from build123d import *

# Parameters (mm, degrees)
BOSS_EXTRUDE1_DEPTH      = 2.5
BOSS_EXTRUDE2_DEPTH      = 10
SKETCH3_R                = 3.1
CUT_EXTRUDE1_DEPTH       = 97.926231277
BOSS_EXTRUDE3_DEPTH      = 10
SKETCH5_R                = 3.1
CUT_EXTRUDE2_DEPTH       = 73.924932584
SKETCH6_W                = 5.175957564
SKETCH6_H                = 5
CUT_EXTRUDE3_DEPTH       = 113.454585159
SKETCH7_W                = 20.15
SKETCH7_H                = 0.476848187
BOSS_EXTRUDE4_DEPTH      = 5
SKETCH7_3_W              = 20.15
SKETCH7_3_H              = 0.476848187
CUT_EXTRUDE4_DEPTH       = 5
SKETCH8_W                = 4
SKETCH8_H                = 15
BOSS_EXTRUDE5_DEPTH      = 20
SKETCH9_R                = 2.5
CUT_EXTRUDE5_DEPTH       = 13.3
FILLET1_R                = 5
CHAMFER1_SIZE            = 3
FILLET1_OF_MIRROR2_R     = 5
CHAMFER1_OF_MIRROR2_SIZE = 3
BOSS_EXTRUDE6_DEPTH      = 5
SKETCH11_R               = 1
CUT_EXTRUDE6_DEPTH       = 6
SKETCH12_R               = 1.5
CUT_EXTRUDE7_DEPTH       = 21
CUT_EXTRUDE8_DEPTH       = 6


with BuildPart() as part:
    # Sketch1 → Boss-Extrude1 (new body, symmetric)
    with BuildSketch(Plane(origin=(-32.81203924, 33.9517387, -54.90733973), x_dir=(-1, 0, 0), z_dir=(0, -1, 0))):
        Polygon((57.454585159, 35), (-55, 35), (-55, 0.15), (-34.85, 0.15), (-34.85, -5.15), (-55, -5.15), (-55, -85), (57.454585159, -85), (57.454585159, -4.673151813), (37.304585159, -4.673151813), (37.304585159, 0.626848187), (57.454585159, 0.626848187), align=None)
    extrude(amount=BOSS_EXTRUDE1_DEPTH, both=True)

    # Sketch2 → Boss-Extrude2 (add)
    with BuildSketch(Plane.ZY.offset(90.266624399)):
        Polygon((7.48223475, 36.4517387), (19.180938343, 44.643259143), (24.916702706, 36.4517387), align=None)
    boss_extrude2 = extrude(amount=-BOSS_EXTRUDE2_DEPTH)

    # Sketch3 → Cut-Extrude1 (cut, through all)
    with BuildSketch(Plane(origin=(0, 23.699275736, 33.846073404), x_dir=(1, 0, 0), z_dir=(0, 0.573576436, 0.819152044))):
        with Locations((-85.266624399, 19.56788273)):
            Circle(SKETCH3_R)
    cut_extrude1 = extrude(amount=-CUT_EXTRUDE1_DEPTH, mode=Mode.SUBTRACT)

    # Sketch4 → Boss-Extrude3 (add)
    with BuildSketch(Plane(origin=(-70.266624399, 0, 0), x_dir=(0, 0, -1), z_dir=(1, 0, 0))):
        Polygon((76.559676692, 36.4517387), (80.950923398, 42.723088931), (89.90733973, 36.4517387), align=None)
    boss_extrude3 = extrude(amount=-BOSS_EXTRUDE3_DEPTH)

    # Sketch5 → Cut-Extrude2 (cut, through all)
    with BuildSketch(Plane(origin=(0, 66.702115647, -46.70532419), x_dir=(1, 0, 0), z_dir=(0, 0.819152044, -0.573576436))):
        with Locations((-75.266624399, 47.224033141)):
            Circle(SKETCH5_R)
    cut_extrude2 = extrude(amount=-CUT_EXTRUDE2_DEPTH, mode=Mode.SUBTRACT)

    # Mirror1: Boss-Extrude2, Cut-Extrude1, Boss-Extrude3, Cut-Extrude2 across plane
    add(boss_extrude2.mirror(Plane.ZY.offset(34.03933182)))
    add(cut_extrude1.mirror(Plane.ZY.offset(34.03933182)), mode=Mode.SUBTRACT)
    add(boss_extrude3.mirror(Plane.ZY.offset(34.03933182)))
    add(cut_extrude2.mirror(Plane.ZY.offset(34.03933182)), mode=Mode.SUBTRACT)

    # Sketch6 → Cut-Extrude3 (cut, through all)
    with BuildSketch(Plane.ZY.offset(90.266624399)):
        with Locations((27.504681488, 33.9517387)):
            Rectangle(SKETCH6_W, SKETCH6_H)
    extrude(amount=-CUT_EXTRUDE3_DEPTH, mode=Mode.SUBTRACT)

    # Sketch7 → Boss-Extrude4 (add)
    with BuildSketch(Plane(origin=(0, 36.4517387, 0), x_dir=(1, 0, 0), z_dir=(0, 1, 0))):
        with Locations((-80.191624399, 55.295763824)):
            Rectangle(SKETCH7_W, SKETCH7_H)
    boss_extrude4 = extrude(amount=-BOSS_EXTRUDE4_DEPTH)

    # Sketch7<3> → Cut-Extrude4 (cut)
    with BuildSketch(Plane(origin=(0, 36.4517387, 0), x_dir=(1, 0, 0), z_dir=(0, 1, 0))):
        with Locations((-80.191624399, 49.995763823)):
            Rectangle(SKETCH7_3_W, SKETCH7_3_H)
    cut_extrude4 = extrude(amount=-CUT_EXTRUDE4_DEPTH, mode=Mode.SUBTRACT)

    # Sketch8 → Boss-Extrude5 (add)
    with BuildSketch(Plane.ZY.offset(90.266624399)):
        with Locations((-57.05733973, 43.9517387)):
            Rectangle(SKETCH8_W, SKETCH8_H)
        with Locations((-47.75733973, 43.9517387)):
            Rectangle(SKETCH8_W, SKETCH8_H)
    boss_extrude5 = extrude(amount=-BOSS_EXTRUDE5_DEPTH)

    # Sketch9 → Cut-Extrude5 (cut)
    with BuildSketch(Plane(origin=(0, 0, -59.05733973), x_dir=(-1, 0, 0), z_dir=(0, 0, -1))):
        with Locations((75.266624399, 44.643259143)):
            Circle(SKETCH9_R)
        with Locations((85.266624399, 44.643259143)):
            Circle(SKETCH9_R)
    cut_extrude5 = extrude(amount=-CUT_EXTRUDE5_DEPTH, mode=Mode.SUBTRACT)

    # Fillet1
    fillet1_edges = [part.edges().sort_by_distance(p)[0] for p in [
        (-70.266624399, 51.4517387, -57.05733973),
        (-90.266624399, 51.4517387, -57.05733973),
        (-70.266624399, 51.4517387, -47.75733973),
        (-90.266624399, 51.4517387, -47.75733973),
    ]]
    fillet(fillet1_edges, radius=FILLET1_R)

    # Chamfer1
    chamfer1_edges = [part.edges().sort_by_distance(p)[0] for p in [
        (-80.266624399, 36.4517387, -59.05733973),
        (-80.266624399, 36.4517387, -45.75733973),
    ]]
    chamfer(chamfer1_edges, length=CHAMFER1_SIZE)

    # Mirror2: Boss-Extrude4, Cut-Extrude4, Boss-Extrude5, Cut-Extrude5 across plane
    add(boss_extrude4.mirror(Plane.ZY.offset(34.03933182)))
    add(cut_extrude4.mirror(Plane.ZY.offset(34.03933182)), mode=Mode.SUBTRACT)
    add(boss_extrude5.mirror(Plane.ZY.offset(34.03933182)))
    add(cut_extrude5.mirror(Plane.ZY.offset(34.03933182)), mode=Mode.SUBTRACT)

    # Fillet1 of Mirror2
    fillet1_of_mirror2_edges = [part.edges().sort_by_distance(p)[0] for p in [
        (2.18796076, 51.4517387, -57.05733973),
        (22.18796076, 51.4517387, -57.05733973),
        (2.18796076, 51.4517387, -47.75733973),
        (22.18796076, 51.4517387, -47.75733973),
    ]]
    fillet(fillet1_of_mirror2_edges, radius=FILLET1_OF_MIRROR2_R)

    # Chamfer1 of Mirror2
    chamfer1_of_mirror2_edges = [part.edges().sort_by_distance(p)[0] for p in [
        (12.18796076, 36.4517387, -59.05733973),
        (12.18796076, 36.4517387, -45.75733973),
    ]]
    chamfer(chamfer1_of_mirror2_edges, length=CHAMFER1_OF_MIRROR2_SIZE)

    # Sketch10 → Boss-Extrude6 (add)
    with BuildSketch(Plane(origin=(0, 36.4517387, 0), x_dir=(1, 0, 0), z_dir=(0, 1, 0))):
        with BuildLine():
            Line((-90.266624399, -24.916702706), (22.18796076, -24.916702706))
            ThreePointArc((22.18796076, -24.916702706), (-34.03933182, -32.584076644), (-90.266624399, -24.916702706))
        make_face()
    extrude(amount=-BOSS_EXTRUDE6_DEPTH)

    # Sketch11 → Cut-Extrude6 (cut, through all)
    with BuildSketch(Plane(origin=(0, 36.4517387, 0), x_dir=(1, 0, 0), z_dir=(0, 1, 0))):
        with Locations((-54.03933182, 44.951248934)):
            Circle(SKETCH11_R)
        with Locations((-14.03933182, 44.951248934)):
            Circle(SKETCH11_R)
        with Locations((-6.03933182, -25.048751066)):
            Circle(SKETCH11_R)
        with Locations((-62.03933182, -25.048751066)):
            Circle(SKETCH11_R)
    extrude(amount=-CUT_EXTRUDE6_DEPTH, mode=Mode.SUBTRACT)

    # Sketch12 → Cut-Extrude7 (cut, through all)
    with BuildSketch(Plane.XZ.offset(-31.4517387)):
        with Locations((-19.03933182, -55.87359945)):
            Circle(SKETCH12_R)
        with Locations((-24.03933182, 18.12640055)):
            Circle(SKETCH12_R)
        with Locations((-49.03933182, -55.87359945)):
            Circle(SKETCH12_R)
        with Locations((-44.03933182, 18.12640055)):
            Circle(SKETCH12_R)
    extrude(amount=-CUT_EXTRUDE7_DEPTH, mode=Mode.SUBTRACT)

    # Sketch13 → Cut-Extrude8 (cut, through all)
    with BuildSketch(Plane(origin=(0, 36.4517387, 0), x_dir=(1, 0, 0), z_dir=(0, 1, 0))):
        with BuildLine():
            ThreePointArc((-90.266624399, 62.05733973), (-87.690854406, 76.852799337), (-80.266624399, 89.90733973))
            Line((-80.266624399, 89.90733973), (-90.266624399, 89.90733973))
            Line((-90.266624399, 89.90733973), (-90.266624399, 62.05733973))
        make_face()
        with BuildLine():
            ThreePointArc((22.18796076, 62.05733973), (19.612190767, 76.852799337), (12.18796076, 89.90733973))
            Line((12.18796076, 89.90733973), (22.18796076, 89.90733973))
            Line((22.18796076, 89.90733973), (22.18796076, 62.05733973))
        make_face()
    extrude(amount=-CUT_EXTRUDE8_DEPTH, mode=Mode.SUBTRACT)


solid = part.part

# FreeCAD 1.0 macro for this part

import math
import FreeCAD as App
import Part
import Sketcher

V = App.Vector
Q = App.Units.Quantity


def edges_at(feature, points):
    """Names of the edges that pass closest to the given points."""
    edges = feature.Shape.Edges
    near = lambda p: min(range(len(edges)), key=lambda i: edges[i].distToShape(Part.Vertex(*p))[0])
    return sorted({f"Edge{near(p) + 1}" for p in points})

doc = App.newDocument("Part")
body = doc.addObject("PartDesign::Body", "Body")

sketch1 = doc.addObject("Sketcher::SketchObject", "Sketch")
body.addObject(sketch1)
sketch1.AttachmentSupport = (doc.XZ_Plane, [""])
sketch1.MapMode = "FlatFace"
sketch1.AttachmentOffset = App.Placement(V(0, 0, -33.951739), App.Rotation())
sketch1.addGeometry([
    Part.LineSegment(V(-90.266624, -89.90734, 0), V(22.187961, -89.90734, 0)),
    Part.LineSegment(V(22.187961, -89.90734, 0), V(22.187961, -55.05734, 0)),
    Part.LineSegment(V(22.187961, -55.05734, 0), V(2.037961, -55.05734, 0)),
    Part.LineSegment(V(2.037961, -55.05734, 0), V(2.037961, -49.75734, 0)),
    Part.LineSegment(V(2.037961, -49.75734, 0), V(22.187961, -49.75734, 0)),
    Part.LineSegment(V(22.187961, -49.75734, 0), V(22.187961, 30.09266, 0)),
    Part.LineSegment(V(22.187961, 30.09266, 0), V(-90.266624, 30.09266, 0)),
    Part.LineSegment(V(-90.266624, 30.09266, 0), V(-90.266624, -50.234188, 0)),
    Part.LineSegment(V(-90.266624, -50.234188, 0), V(-70.116624, -50.234188, 0)),
    Part.LineSegment(V(-70.116624, -50.234188, 0), V(-70.116624, -55.534188, 0)),
    Part.LineSegment(V(-70.116624, -55.534188, 0), V(-90.266624, -55.534188, 0)),
    Part.LineSegment(V(-90.266624, -55.534188, 0), V(-90.266624, -89.90734, 0)),
], False)
sketch1.addConstraint([
    Sketcher.Constraint("Coincident", 0, 2, 1, 1),
    Sketcher.Constraint("Coincident", 1, 2, 2, 1),
    Sketcher.Constraint("Coincident", 2, 2, 3, 1),
    Sketcher.Constraint("Coincident", 3, 2, 4, 1),
    Sketcher.Constraint("Coincident", 4, 2, 5, 1),
    Sketcher.Constraint("Coincident", 5, 2, 6, 1),
    Sketcher.Constraint("Coincident", 6, 2, 7, 1),
    Sketcher.Constraint("Coincident", 7, 2, 8, 1),
    Sketcher.Constraint("Coincident", 8, 2, 9, 1),
    Sketcher.Constraint("Coincident", 9, 2, 10, 1),
    Sketcher.Constraint("Coincident", 10, 2, 11, 1),
    Sketcher.Constraint("Coincident", 11, 2, 0, 1),
    Sketcher.Constraint("Horizontal", 0),
    Sketcher.Constraint("Vertical", 1),
    Sketcher.Constraint("Horizontal", 2),
    Sketcher.Constraint("Vertical", 3),
    Sketcher.Constraint("Horizontal", 4),
    Sketcher.Constraint("Vertical", 5),
    Sketcher.Constraint("Horizontal", 6),
    Sketcher.Constraint("Vertical", 7),
    Sketcher.Constraint("Horizontal", 8),
    Sketcher.Constraint("Vertical", 9),
    Sketcher.Constraint("Horizontal", 10),
    Sketcher.Constraint("Vertical", 11),
    Sketcher.Constraint("Vertical", 1, 2, 4, 2),
    Sketcher.Constraint("Vertical", 7, 2, 10, 2),
    Sketcher.Constraint("Equal", 4, 8),
    Sketcher.Constraint("Equal", 3, 9),
    Sketcher.Constraint("DistanceY", 3, 1, 3, 2, 5.3),
    Sketcher.Constraint("DistanceY", 0, 2, 5, 2, 120.0),
    Sketcher.Constraint("DistanceX", 2, 2, 2, 1, 20.15),
    Sketcher.Constraint("DistanceY", 1, 1, 1, 2, 34.85),
    Sketcher.Constraint("DistanceY", 7, 2, 7, 1, 80.326848),
    Sketcher.Constraint("DistanceX", 0, 1, 0, 2, 112.454585),
    Sketcher.Constraint("DistanceX", -1, 1, 0, 2, 22.187961),
    Sketcher.Constraint("DistanceY", 0, 2, -1, 1, 89.90734),
])
pad1 = doc.addObject("PartDesign::Pad", "Pad")
body.addObject(pad1)
pad1.Profile = sketch1
pad1.Length = 5
pad1.Midplane = True

sketch2 = doc.addObject("Sketcher::SketchObject", "Sketch001")
body.addObject(sketch2)
sketch2.AttachmentSupport = (doc.YZ_Plane, [""])
sketch2.MapMode = "FlatFace"
sketch2.AttachmentOffset = App.Placement(V(0, 0, -90.266624), App.Rotation())
sketch2.addGeometry([
    Part.LineSegment(V(44.643259, 19.180938, 0), V(36.451739, 7.482235, 0)),
    Part.LineSegment(V(36.451739, 7.482235, 0), V(36.451739, 24.916703, 0)),
    Part.LineSegment(V(36.451739, 24.916703, 0), V(44.643259, 19.180938, 0)),
], False)
sketch2.addConstraint([
    Sketcher.Constraint("Coincident", 0, 2, 1, 1),
    Sketcher.Constraint("Coincident", 1, 2, 2, 1),
    Sketcher.Constraint("Coincident", 2, 2, 0, 1),
    Sketcher.Constraint("Vertical", 1),
    Sketcher.Constraint("Perpendicular", 0, 2),
    Sketcher.Constraint("Angle", 0, Q("-125 deg")),
    Sketcher.Constraint("Distance", 2, 10.0),
    Sketcher.Constraint("DistanceX", -1, 1, 0, 2, 36.451739),
    Sketcher.Constraint("DistanceY", -1, 1, 2, 2, 19.180938),
])
pad2 = doc.addObject("PartDesign::Pad", "Pad001")
body.addObject(pad2)
pad2.Profile = sketch2
pad2.Length = 10

sketch3 = doc.addObject("Sketcher::SketchObject", "Sketch002")
body.addObject(sketch3)
sketch3.Placement = App.Placement(V(0, 23.699276, 33.846073), App.Rotation(V(1, 0, 0), V(0, 0.819152044, -0.573576436), V(0, 0.573576436, 0.819152044), "ZXY"))
sketch3.addGeometry(Part.Circle(V(-85.266624, 19.567883, 0), V(0, 0, 1), 3.1), False)
sketch3.addConstraint([
    Sketcher.Constraint("Diameter", 0, 6.2),
    Sketcher.Constraint("DistanceX", 0, 3, -1, 1, 85.266624),
    Sketcher.Constraint("DistanceY", -1, 1, 0, 3, 19.567883),
])
pocket1 = doc.addObject("PartDesign::Pocket", "Pocket")
body.addObject(pocket1)
pocket1.Profile = sketch3
pocket1.Type = "ThroughAll"

sketch4 = doc.addObject("Sketcher::SketchObject", "Sketch003")
body.addObject(sketch4)
sketch4.AttachmentSupport = (doc.YZ_Plane, [""])
sketch4.MapMode = "FlatFace"
sketch4.AttachmentOffset = App.Placement(V(0, 0, -70.266624), App.Rotation())
sketch4.addGeometry([
    Part.LineSegment(V(42.723089, -80.950923, 0), V(36.451739, -76.559677, 0)),
    Part.LineSegment(V(36.451739, -76.559677, 0), V(36.451739, -89.90734, 0)),
    Part.LineSegment(V(36.451739, -89.90734, 0), V(42.723089, -80.950923, 0)),
], False)
sketch4.addConstraint([
    Sketcher.Constraint("Coincident", 0, 2, 1, 1),
    Sketcher.Constraint("Coincident", 1, 2, 2, 1),
    Sketcher.Constraint("Coincident", 2, 2, 0, 1),
    Sketcher.Constraint("Vertical", 1),
    Sketcher.Constraint("Perpendicular", 0, 2),
    Sketcher.Constraint("Angle", 0, Q("145 deg")),
    Sketcher.Constraint("DistanceY", 1, 2, 1, 1, 13.347663),
    Sketcher.Constraint("DistanceX", -1, 1, 0, 2, 36.451739),
    Sketcher.Constraint("DistanceY", 1, 2, -1, 1, 89.90734),
])
pad3 = doc.addObject("PartDesign::Pad", "Pad002")
body.addObject(pad3)
pad3.Profile = sketch4
pad3.Length = 10
pad3.Reversed = True

sketch5 = doc.addObject("Sketcher::SketchObject", "Sketch004")
body.addObject(sketch5)
sketch5.Placement = App.Placement(V(0, 66.702116, -46.705324), App.Rotation(V(1, 0, 0), V(0, -0.573576436, -0.819152044), V(0, 0.819152044, -0.573576436), "ZXY"))
sketch5.addGeometry(Part.Circle(V(-75.266624, 47.224033, 0), V(0, 0, 1), 3.1), False)
sketch5.addConstraint([
    Sketcher.Constraint("Diameter", 0, 6.2),
    Sketcher.Constraint("DistanceX", 0, 3, -1, 1, 75.266624),
    Sketcher.Constraint("DistanceY", -1, 1, 0, 3, 47.224033),
])
pocket2 = doc.addObject("PartDesign::Pocket", "Pocket001")
body.addObject(pocket2)
pocket2.Profile = sketch5
pocket2.Type = "ThroughAll"
doc.recompute()

datumplane = doc.addObject("PartDesign::Plane", "DatumPlane")
body.addObject(datumplane)
datumplane.AttachmentSupport = (doc.YZ_Plane, [""])
datumplane.MapMode = "FlatFace"
datumplane.AttachmentOffset = App.Placement(V(0, 0, -34.039332), App.Rotation())
mirrored = doc.addObject("PartDesign::Mirrored", "Mirrored")
body.addObject(mirrored)
mirrored.Originals = [pad2, pocket1, pad3, pocket2]
mirrored.MirrorPlane = (datumplane, [""])
body.Tip = mirrored

sketch6 = doc.addObject("Sketcher::SketchObject", "Sketch005")
body.addObject(sketch6)
sketch6.AttachmentSupport = (doc.YZ_Plane, [""])
sketch6.MapMode = "FlatFace"
sketch6.AttachmentOffset = App.Placement(V(0, 0, -90.266624), App.Rotation())
sketch6.addGeometry([
    Part.LineSegment(V(36.451739, 24.916703, 0), V(31.451739, 24.916703, 0)),
    Part.LineSegment(V(31.451739, 24.916703, 0), V(31.451739, 30.09266, 0)),
    Part.LineSegment(V(31.451739, 30.09266, 0), V(36.451739, 30.09266, 0)),
    Part.LineSegment(V(36.451739, 30.09266, 0), V(36.451739, 24.916703, 0)),
], False)
sketch6.addConstraint([
    Sketcher.Constraint("Coincident", 0, 2, 1, 1),
    Sketcher.Constraint("Coincident", 1, 2, 2, 1),
    Sketcher.Constraint("Coincident", 2, 2, 3, 1),
    Sketcher.Constraint("Coincident", 3, 2, 0, 1),
    Sketcher.Constraint("Horizontal", 0),
    Sketcher.Constraint("Vertical", 1),
    Sketcher.Constraint("Horizontal", 2),
    Sketcher.Constraint("Vertical", 3),
    Sketcher.Constraint("DistanceX", 0, 2, 0, 1, 5.0),
    Sketcher.Constraint("DistanceY", 1, 1, 1, 2, 5.175958),
    Sketcher.Constraint("DistanceX", -1, 1, 0, 2, 31.451739),
    Sketcher.Constraint("DistanceY", -1, 1, 1, 2, 30.09266),
])
pocket3 = doc.addObject("PartDesign::Pocket", "Pocket002")
body.addObject(pocket3)
pocket3.Profile = sketch6
pocket3.Type = "ThroughAll"
pocket3.Reversed = True

sketch7 = doc.addObject("Sketcher::SketchObject", "Sketch006")
body.addObject(sketch7)
sketch7.AttachmentSupport = (doc.XZ_Plane, [""])
sketch7.MapMode = "FlatFace"
sketch7.AttachmentOffset = App.Placement(V(0, 0, -36.451739), App.Rotation())
sketch7.addGeometry([
    Part.LineSegment(V(-90.266624, -55.534188, 0), V(-90.266624, -55.05734, 0)),
    Part.LineSegment(V(-90.266624, -55.05734, 0), V(-70.116624, -55.05734, 0)),
    Part.LineSegment(V(-70.116624, -55.05734, 0), V(-70.116624, -55.534188, 0)),
    Part.LineSegment(V(-70.116624, -55.534188, 0), V(-90.266624, -55.534188, 0)),
], False)
sketch7.addConstraint([
    Sketcher.Constraint("Coincident", 0, 2, 1, 1),
    Sketcher.Constraint("Coincident", 1, 2, 2, 1),
    Sketcher.Constraint("Coincident", 2, 2, 3, 1),
    Sketcher.Constraint("Coincident", 3, 2, 0, 1),
    Sketcher.Constraint("Vertical", 0),
    Sketcher.Constraint("Horizontal", 1),
    Sketcher.Constraint("Vertical", 2),
    Sketcher.Constraint("Horizontal", 3),
    Sketcher.Constraint("DistanceX", 1, 1, 1, 2, 20.15),
    Sketcher.Constraint("DistanceY", 0, 1, 0, 2, 0.476848),
    Sketcher.Constraint("DistanceY", 0, 2, -1, 1, 55.05734),
    Sketcher.Constraint("DistanceX", 0, 2, -1, 1, 90.266624),
])
pad4 = doc.addObject("PartDesign::Pad", "Pad003")
body.addObject(pad4)
pad4.Profile = sketch7
pad4.Length = 5

sketch8 = doc.addObject("Sketcher::SketchObject", "Sketch007")
body.addObject(sketch8)
sketch8.AttachmentSupport = (doc.XZ_Plane, [""])
sketch8.MapMode = "FlatFace"
sketch8.AttachmentOffset = App.Placement(V(0, 0, -36.451739), App.Rotation())
sketch8.addGeometry([
    Part.LineSegment(V(-90.266624, -50.234188, 0), V(-90.266624, -49.75734, 0)),
    Part.LineSegment(V(-90.266624, -49.75734, 0), V(-70.116624, -49.75734, 0)),
    Part.LineSegment(V(-70.116624, -49.75734, 0), V(-70.116624, -50.234188, 0)),
    Part.LineSegment(V(-70.116624, -50.234188, 0), V(-90.266624, -50.234188, 0)),
], False)
sketch8.addConstraint([
    Sketcher.Constraint("Coincident", 0, 2, 1, 1),
    Sketcher.Constraint("Coincident", 1, 2, 2, 1),
    Sketcher.Constraint("Coincident", 2, 2, 3, 1),
    Sketcher.Constraint("Coincident", 3, 2, 0, 1),
    Sketcher.Constraint("Vertical", 0),
    Sketcher.Constraint("Horizontal", 1),
    Sketcher.Constraint("Vertical", 2),
    Sketcher.Constraint("Horizontal", 3),
    Sketcher.Constraint("DistanceX", 1, 1, 1, 2, 20.15),
    Sketcher.Constraint("DistanceY", 0, 1, 0, 2, 0.476848),
    Sketcher.Constraint("DistanceY", 0, 2, -1, 1, 49.75734),
    Sketcher.Constraint("DistanceX", 0, 2, -1, 1, 90.266624),
])
pocket4 = doc.addObject("PartDesign::Pocket", "Pocket003")
body.addObject(pocket4)
pocket4.Profile = sketch8
pocket4.Length = 5
pocket4.Reversed = True

sketch9 = doc.addObject("Sketcher::SketchObject", "Sketch008")
body.addObject(sketch9)
sketch9.AttachmentSupport = (doc.YZ_Plane, [""])
sketch9.MapMode = "FlatFace"
sketch9.AttachmentOffset = App.Placement(V(0, 0, -90.266624), App.Rotation())
sketch9.addGeometry([
    Part.LineSegment(V(51.451739, -59.05734, 0), V(36.451739, -59.05734, 0)),
    Part.LineSegment(V(36.451739, -59.05734, 0), V(36.451739, -55.05734, 0)),
    Part.LineSegment(V(36.451739, -55.05734, 0), V(51.451739, -55.05734, 0)),
    Part.LineSegment(V(51.451739, -55.05734, 0), V(51.451739, -59.05734, 0)),
    Part.LineSegment(V(51.451739, -49.75734, 0), V(36.451739, -49.75734, 0)),
    Part.LineSegment(V(36.451739, -49.75734, 0), V(36.451739, -45.75734, 0)),
    Part.LineSegment(V(36.451739, -45.75734, 0), V(51.451739, -45.75734, 0)),
    Part.LineSegment(V(51.451739, -45.75734, 0), V(51.451739, -49.75734, 0)),
], False)
sketch9.addConstraint([
    Sketcher.Constraint("Coincident", 0, 2, 1, 1),
    Sketcher.Constraint("Coincident", 1, 2, 2, 1),
    Sketcher.Constraint("Coincident", 2, 2, 3, 1),
    Sketcher.Constraint("Coincident", 3, 2, 0, 1),
    Sketcher.Constraint("Coincident", 4, 2, 5, 1),
    Sketcher.Constraint("Coincident", 5, 2, 6, 1),
    Sketcher.Constraint("Coincident", 6, 2, 7, 1),
    Sketcher.Constraint("Coincident", 7, 2, 4, 1),
    Sketcher.Constraint("Horizontal", 0),
    Sketcher.Constraint("Vertical", 1),
    Sketcher.Constraint("Horizontal", 2),
    Sketcher.Constraint("Vertical", 3),
    Sketcher.Constraint("Horizontal", 4),
    Sketcher.Constraint("Vertical", 5),
    Sketcher.Constraint("Horizontal", 6),
    Sketcher.Constraint("Vertical", 7),
    Sketcher.Constraint("Vertical", 1, 2, 4, 2),
    Sketcher.Constraint("Vertical", 3, 2, 6, 2),
    Sketcher.Constraint("Equal", 3, 5),
    Sketcher.Constraint("DistanceX", 0, 2, 0, 1, 15.0),
    Sketcher.Constraint("DistanceY", 1, 1, 1, 2, 4.0),
    Sketcher.Constraint("DistanceY", 1, 2, 4, 2, 5.3),
    Sketcher.Constraint("DistanceX", -1, 1, 0, 2, 36.451739),
    Sketcher.Constraint("DistanceY", 0, 2, -1, 1, 59.05734),
])
pad5 = doc.addObject("PartDesign::Pad", "Pad004")
body.addObject(pad5)
pad5.Profile = sketch9
pad5.Length = 20

sketch10 = doc.addObject("Sketcher::SketchObject", "Sketch009")
body.addObject(sketch10)
sketch10.AttachmentSupport = (doc.XY_Plane, [""])
sketch10.MapMode = "FlatFace"
sketch10.AttachmentOffset = App.Placement(V(0, 0, -59.05734), App.Rotation())
sketch10.addGeometry([
    Part.Circle(V(-75.266624, 44.643259, 0), V(0, 0, 1), 2.5),
    Part.Circle(V(-85.266624, 44.643259, 0), V(0, 0, 1), 2.5),
], False)
sketch10.addConstraint([
    Sketcher.Constraint("Equal", 0, 1),
    Sketcher.Constraint("Horizontal", 0, 3, 1, 3),
    Sketcher.Constraint("Diameter", 0, 5.0),
    Sketcher.Constraint("DistanceX", 1, 3, 0, 3, 10.0),
    Sketcher.Constraint("DistanceY", -1, 1, 0, 3, 44.643259),
    Sketcher.Constraint("DistanceX", 0, 3, -1, 1, 75.266624),
])
pocket5 = doc.addObject("PartDesign::Pocket", "Pocket004")
body.addObject(pocket5)
pocket5.Profile = sketch10
pocket5.Length = 13.3
pocket5.Reversed = True
doc.recompute()

fillet = doc.addObject("PartDesign::Fillet", "Fillet")
body.addObject(fillet)
fillet.Base = (pocket5, edges_at(pocket5, [
    (-70.267, 51.452, -57.057),
    (-90.267, 51.452, -57.057),
    (-70.267, 51.452, -47.757),
    (-90.267, 51.452, -47.757),
]))
fillet.Radius = 5
doc.recompute()

chamfer = doc.addObject("PartDesign::Chamfer", "Chamfer")
body.addObject(chamfer)
chamfer.Base = (fillet, edges_at(fillet, [(-80.267, 36.452, -59.057), (-80.267, 36.452, -45.757)]))
chamfer.Size = 3
doc.recompute()

datumplane2 = doc.addObject("PartDesign::Plane", "DatumPlane001")
body.addObject(datumplane2)
datumplane2.AttachmentSupport = (doc.YZ_Plane, [""])
datumplane2.MapMode = "FlatFace"
datumplane2.AttachmentOffset = App.Placement(V(0, 0, -34.039332), App.Rotation())
mirrored2 = doc.addObject("PartDesign::Mirrored", "Mirrored001")
body.addObject(mirrored2)
mirrored2.Originals = [pad4, pocket4, pad5, pocket5]
mirrored2.MirrorPlane = (datumplane2, [""])
body.Tip = mirrored2
doc.recompute()

fillet2 = doc.addObject("PartDesign::Fillet", "Fillet001")
body.addObject(fillet2)
fillet2.Base = (mirrored2, edges_at(mirrored2, [
    (2.188, 51.452, -57.057),
    (22.188, 51.452, -57.057),
    (2.188, 51.452, -47.757),
    (22.188, 51.452, -47.757),
]))
fillet2.Radius = 5
doc.recompute()

chamfer2 = doc.addObject("PartDesign::Chamfer", "Chamfer001")
body.addObject(chamfer2)
chamfer2.Base = (fillet2, edges_at(fillet2, [(12.188, 36.452, -59.057), (12.188, 36.452, -45.757)]))
chamfer2.Size = 3

sketch11 = doc.addObject("Sketcher::SketchObject", "Sketch010")
body.addObject(sketch11)
sketch11.AttachmentSupport = (doc.XZ_Plane, [""])
sketch11.MapMode = "FlatFace"
sketch11.AttachmentOffset = App.Placement(V(0, 0, -36.451739), App.Rotation())
sketch11.addGeometry([
    Part.LineSegment(V(22.187961, 24.916703, 0), V(-90.266624, 24.916703, 0)),
    Part.ArcOfCircle(Part.Circle(V(-34.039332, -177.415923, 0), V(0, 0, 1), 210), math.radians(74.469636), math.radians(105.530364)),
], False)
sketch11.addConstraint([
    Sketcher.Constraint("Coincident", 0, 1, 1, 1),
    Sketcher.Constraint("Coincident", 1, 2, 0, 2),
    Sketcher.Constraint("Horizontal", 0),
    Sketcher.Constraint("Radius", 1, 210.0),
    Sketcher.Constraint("DistanceX", 0, 2, 0, 1, 112.454585),
    Sketcher.Constraint("DistanceX", 1, 3, -1, 1, 34.039332),
    Sketcher.Constraint("DistanceY", 1, 3, -1, 1, 177.415923),
])
pad6 = doc.addObject("PartDesign::Pad", "Pad005")
body.addObject(pad6)
pad6.Profile = sketch11
pad6.Length = 5

sketch12 = doc.addObject("Sketcher::SketchObject", "Sketch011")
body.addObject(sketch12)
sketch12.AttachmentSupport = (doc.XZ_Plane, [""])
sketch12.MapMode = "FlatFace"
sketch12.AttachmentOffset = App.Placement(V(0, 0, -36.451739), App.Rotation())
sketch12.addGeometry([
    Part.Circle(V(-54.039332, -44.951249, 0), V(0, 0, 1), 1),
    Part.Circle(V(-14.039332, -44.951249, 0), V(0, 0, 1), 1),
    Part.Circle(V(-6.039332, 25.048751, 0), V(0, 0, 1), 1),
    Part.Circle(V(-62.039332, 25.048751, 0), V(0, 0, 1), 1),
], False)
sketch12.addConstraint([
    Sketcher.Constraint("Equal", 0, 1),
    Sketcher.Constraint("Equal", 1, 2),
    Sketcher.Constraint("Equal", 2, 3),
    Sketcher.Constraint("Horizontal", 0, 3, 1, 3),
    Sketcher.Constraint("Horizontal", 2, 3, 3, 3),
    Sketcher.Constraint("Diameter", 0, 2.0),
    Sketcher.Constraint("DistanceX", 0, 3, 1, 3, 40.0),
    Sketcher.Constraint("DistanceX", 1, 3, 2, 3, 8.0),
    Sketcher.Constraint("DistanceY", 1, 3, 2, 3, 70.0),
    Sketcher.Constraint("DistanceX", 3, 3, 2, 3, 56.0),
    Sketcher.Constraint("DistanceX", 0, 3, -1, 1, 54.039332),
    Sketcher.Constraint("DistanceY", 0, 3, -1, 1, 44.951249),
])
pocket6 = doc.addObject("PartDesign::Pocket", "Pocket005")
body.addObject(pocket6)
pocket6.Profile = sketch12
pocket6.Type = "ThroughAll"
pocket6.Reversed = True

sketch13 = doc.addObject("Sketcher::SketchObject", "Sketch012")
body.addObject(sketch13)
sketch13.AttachmentSupport = (doc.XZ_Plane, [""])
sketch13.MapMode = "FlatFace"
sketch13.AttachmentOffset = App.Placement(V(0, 0, -31.451739), App.Rotation())
sketch13.addGeometry([
    Part.Circle(V(-19.039332, -55.873599, 0), V(0, 0, 1), 1.5),
    Part.Circle(V(-24.039332, 18.126401, 0), V(0, 0, 1), 1.5),
    Part.Circle(V(-49.039332, -55.873599, 0), V(0, 0, 1), 1.5),
    Part.Circle(V(-44.039332, 18.126401, 0), V(0, 0, 1), 1.5),
], False)
sketch13.addConstraint([
    Sketcher.Constraint("Equal", 0, 1),
    Sketcher.Constraint("Equal", 1, 2),
    Sketcher.Constraint("Equal", 2, 3),
    Sketcher.Constraint("Horizontal", 0, 3, 2, 3),
    Sketcher.Constraint("Horizontal", 1, 3, 3, 3),
    Sketcher.Constraint("Diameter", 0, 3.0),
    Sketcher.Constraint("DistanceX", 1, 3, 0, 3, 5.0),
    Sketcher.Constraint("DistanceY", 0, 3, 1, 3, 74.0),
    Sketcher.Constraint("DistanceX", 2, 3, 0, 3, 30.0),
    Sketcher.Constraint("DistanceX", 3, 3, 1, 3, 20.0),
    Sketcher.Constraint("DistanceY", 0, 3, -1, 1, 55.873599),
    Sketcher.Constraint("DistanceX", 0, 3, -1, 1, 19.039332),
])
pocket7 = doc.addObject("PartDesign::Pocket", "Pocket006")
body.addObject(pocket7)
pocket7.Profile = sketch13
pocket7.Type = "ThroughAll"

sketch14 = doc.addObject("Sketcher::SketchObject", "Sketch013")
body.addObject(sketch14)
sketch14.AttachmentSupport = (doc.XZ_Plane, [""])
sketch14.MapMode = "FlatFace"
sketch14.AttachmentOffset = App.Placement(V(0, 0, -36.451739), App.Rotation())
sketch14.addGeometry([
    Part.ArcOfCircle(Part.Circle(V(-46.485499, -62.05734, 0), V(0, 0, 1), 43.781125), math.radians(-180), math.radians(-140.496981)),
    Part.LineSegment(V(-80.266624, -89.90734, 0), V(-90.266624, -89.90734, 0)),
    Part.LineSegment(V(-90.266624, -89.90734, 0), V(-90.266624, -62.05734, 0)),
    Part.ArcOfCircle(Part.Circle(V(-21.593164, -62.05734, 0), V(0, 0, 1), 43.781125), math.radians(-39.503019), math.radians(0)),
    Part.LineSegment(V(22.187961, -62.05734, 0), V(22.187961, -89.90734, 0)),
    Part.LineSegment(V(22.187961, -89.90734, 0), V(12.187961, -89.90734, 0)),
], False)
sketch14.addConstraint([
    Sketcher.Constraint("Coincident", 0, 2, 1, 1),
    Sketcher.Constraint("Coincident", 1, 2, 2, 1),
    Sketcher.Constraint("Tangent", 2, 2, 0, 1),
    Sketcher.Constraint("Tangent", 3, 2, 4, 1),
    Sketcher.Constraint("Coincident", 4, 2, 5, 1),
    Sketcher.Constraint("Coincident", 5, 2, 3, 1),
    Sketcher.Constraint("Horizontal", 1),
    Sketcher.Constraint("Vertical", 2),
    Sketcher.Constraint("Vertical", 4),
    Sketcher.Constraint("Horizontal", 5),
    Sketcher.Constraint("Equal", 0, 3),
    Sketcher.Constraint("Horizontal", 0, 3, 3, 3),
    Sketcher.Constraint("Horizontal", 1, 2, 4, 2),
    Sketcher.Constraint("DistanceX", 1, 2, 1, 1, 10.0),
    Sketcher.Constraint("DistanceY", 2, 1, 2, 2, 27.85),
    Sketcher.Constraint("DistanceX", 0, 3, -1, 1, 46.485499),
    Sketcher.Constraint("DistanceY", 0, 3, -1, 1, 62.05734),
    Sketcher.Constraint("DistanceX", -1, 1, 3, 2, 22.187961),
])
pocket8 = doc.addObject("PartDesign::Pocket", "Pocket007")
body.addObject(pocket8)
pocket8.Profile = sketch14
pocket8.Type = "ThroughAll"
pocket8.Reversed = True

doc.recompute()
